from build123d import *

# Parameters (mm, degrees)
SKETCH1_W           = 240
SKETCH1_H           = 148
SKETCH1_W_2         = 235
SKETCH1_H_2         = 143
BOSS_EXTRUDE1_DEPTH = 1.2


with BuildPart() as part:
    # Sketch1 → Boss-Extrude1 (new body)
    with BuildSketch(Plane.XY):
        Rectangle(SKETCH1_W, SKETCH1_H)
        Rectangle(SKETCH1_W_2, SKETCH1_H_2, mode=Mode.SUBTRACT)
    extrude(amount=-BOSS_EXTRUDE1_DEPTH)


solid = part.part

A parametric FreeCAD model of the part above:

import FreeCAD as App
import Part
import Sketcher
from FreeCAD import Vector

doc = App.newDocument("Part")
body = doc.addObject("PartDesign::Body", "Body")

# Sketch on XY plane
sketch1 = body.newObject("Sketcher::SketchObject", "Sketch")
sketch1.AttachmentSupport = (doc.getObject("XY_Plane"), [""])
sketch1.MapMode = "FlatFace"
sketch1.addGeometry(Part.LineSegment(Vector(-120, 74, 0), Vector(-120, -74, 0)), False)
sketch1.addGeometry(Part.LineSegment(Vector(-120, -74, 0), Vector(120, -74, 0)), False)
sketch1.addGeometry(Part.LineSegment(Vector(120, -74, 0), Vector(120, 74, 0)), False)
sketch1.addGeometry(Part.LineSegment(Vector(120, 74, 0), Vector(-120, 74, 0)), False)
sketch1.addGeometry(Part.LineSegment(Vector(118, -72, 0), Vector(-118, -72, 0)), False)
sketch1.addGeometry(Part.LineSegment(Vector(-118, -72, 0), Vector(-118, 72, 0)), False)
sketch1.addGeometry(Part.LineSegment(Vector(-118, 72, 0), Vector(118, 72, 0)), False)
sketch1.addGeometry(Part.LineSegment(Vector(118, 72, 0), Vector(118, -72, 0)), False)
sketch1.addConstraint(Sketcher.Constraint("Coincident", 0, 2, 1, 1))
sketch1.addConstraint(Sketcher.Constraint("Coincident", 1, 2, 2, 1))
sketch1.addConstraint(Sketcher.Constraint("Coincident", 2, 2, 3, 1))
sketch1.addConstraint(Sketcher.Constraint("Coincident", 3, 2, 0, 1))
sketch1.addConstraint(Sketcher.Constraint("Coincident", 4, 2, 5, 1))
sketch1.addConstraint(Sketcher.Constraint("Coincident", 5, 2, 6, 1))
sketch1.addConstraint(Sketcher.Constraint("Coincident", 6, 2, 7, 1))
sketch1.addConstraint(Sketcher.Constraint("Coincident", 7, 2, 4, 1))
sketch1.addConstraint(Sketcher.Constraint("Vertical", 0))
sketch1.addConstraint(Sketcher.Constraint("Horizontal", 1))
sketch1.addConstraint(Sketcher.Constraint("Vertical", 2))
sketch1.addConstraint(Sketcher.Constraint("Horizontal", 3))
sketch1.addConstraint(Sketcher.Constraint("Horizontal", 4))
sketch1.addConstraint(Sketcher.Constraint("Vertical", 5))
sketch1.addConstraint(Sketcher.Constraint("Horizontal", 6))
sketch1.addConstraint(Sketcher.Constraint("Vertical", 7))
sketch1.addConstraint(Sketcher.Constraint("Symmetric", 0, 2, 2, 2, -1, 1))
sketch1.addConstraint(Sketcher.Constraint("Symmetric", 4, 2, 6, 2, -1, 1))
sketch1.addConstraint(Sketcher.Constraint("DistanceX", 1, 1, 1, 2, 240.0))
sketch1.addConstraint(Sketcher.Constraint("DistanceX", 4, 2, 4, 1, 235.0))
sketch1.addConstraint(Sketcher.Constraint("DistanceY", 0, 2, 0, 1, 148.0))
sketch1.addConstraint(Sketcher.Constraint("DistanceY", 5, 1, 5, 2, 143.0))
pad1 = body.newObject("PartDesign::Pad", "Pad")
pad1.Profile = sketch1
pad1.Length = 1.2
pad1.Reversed = True

doc.recompute()
